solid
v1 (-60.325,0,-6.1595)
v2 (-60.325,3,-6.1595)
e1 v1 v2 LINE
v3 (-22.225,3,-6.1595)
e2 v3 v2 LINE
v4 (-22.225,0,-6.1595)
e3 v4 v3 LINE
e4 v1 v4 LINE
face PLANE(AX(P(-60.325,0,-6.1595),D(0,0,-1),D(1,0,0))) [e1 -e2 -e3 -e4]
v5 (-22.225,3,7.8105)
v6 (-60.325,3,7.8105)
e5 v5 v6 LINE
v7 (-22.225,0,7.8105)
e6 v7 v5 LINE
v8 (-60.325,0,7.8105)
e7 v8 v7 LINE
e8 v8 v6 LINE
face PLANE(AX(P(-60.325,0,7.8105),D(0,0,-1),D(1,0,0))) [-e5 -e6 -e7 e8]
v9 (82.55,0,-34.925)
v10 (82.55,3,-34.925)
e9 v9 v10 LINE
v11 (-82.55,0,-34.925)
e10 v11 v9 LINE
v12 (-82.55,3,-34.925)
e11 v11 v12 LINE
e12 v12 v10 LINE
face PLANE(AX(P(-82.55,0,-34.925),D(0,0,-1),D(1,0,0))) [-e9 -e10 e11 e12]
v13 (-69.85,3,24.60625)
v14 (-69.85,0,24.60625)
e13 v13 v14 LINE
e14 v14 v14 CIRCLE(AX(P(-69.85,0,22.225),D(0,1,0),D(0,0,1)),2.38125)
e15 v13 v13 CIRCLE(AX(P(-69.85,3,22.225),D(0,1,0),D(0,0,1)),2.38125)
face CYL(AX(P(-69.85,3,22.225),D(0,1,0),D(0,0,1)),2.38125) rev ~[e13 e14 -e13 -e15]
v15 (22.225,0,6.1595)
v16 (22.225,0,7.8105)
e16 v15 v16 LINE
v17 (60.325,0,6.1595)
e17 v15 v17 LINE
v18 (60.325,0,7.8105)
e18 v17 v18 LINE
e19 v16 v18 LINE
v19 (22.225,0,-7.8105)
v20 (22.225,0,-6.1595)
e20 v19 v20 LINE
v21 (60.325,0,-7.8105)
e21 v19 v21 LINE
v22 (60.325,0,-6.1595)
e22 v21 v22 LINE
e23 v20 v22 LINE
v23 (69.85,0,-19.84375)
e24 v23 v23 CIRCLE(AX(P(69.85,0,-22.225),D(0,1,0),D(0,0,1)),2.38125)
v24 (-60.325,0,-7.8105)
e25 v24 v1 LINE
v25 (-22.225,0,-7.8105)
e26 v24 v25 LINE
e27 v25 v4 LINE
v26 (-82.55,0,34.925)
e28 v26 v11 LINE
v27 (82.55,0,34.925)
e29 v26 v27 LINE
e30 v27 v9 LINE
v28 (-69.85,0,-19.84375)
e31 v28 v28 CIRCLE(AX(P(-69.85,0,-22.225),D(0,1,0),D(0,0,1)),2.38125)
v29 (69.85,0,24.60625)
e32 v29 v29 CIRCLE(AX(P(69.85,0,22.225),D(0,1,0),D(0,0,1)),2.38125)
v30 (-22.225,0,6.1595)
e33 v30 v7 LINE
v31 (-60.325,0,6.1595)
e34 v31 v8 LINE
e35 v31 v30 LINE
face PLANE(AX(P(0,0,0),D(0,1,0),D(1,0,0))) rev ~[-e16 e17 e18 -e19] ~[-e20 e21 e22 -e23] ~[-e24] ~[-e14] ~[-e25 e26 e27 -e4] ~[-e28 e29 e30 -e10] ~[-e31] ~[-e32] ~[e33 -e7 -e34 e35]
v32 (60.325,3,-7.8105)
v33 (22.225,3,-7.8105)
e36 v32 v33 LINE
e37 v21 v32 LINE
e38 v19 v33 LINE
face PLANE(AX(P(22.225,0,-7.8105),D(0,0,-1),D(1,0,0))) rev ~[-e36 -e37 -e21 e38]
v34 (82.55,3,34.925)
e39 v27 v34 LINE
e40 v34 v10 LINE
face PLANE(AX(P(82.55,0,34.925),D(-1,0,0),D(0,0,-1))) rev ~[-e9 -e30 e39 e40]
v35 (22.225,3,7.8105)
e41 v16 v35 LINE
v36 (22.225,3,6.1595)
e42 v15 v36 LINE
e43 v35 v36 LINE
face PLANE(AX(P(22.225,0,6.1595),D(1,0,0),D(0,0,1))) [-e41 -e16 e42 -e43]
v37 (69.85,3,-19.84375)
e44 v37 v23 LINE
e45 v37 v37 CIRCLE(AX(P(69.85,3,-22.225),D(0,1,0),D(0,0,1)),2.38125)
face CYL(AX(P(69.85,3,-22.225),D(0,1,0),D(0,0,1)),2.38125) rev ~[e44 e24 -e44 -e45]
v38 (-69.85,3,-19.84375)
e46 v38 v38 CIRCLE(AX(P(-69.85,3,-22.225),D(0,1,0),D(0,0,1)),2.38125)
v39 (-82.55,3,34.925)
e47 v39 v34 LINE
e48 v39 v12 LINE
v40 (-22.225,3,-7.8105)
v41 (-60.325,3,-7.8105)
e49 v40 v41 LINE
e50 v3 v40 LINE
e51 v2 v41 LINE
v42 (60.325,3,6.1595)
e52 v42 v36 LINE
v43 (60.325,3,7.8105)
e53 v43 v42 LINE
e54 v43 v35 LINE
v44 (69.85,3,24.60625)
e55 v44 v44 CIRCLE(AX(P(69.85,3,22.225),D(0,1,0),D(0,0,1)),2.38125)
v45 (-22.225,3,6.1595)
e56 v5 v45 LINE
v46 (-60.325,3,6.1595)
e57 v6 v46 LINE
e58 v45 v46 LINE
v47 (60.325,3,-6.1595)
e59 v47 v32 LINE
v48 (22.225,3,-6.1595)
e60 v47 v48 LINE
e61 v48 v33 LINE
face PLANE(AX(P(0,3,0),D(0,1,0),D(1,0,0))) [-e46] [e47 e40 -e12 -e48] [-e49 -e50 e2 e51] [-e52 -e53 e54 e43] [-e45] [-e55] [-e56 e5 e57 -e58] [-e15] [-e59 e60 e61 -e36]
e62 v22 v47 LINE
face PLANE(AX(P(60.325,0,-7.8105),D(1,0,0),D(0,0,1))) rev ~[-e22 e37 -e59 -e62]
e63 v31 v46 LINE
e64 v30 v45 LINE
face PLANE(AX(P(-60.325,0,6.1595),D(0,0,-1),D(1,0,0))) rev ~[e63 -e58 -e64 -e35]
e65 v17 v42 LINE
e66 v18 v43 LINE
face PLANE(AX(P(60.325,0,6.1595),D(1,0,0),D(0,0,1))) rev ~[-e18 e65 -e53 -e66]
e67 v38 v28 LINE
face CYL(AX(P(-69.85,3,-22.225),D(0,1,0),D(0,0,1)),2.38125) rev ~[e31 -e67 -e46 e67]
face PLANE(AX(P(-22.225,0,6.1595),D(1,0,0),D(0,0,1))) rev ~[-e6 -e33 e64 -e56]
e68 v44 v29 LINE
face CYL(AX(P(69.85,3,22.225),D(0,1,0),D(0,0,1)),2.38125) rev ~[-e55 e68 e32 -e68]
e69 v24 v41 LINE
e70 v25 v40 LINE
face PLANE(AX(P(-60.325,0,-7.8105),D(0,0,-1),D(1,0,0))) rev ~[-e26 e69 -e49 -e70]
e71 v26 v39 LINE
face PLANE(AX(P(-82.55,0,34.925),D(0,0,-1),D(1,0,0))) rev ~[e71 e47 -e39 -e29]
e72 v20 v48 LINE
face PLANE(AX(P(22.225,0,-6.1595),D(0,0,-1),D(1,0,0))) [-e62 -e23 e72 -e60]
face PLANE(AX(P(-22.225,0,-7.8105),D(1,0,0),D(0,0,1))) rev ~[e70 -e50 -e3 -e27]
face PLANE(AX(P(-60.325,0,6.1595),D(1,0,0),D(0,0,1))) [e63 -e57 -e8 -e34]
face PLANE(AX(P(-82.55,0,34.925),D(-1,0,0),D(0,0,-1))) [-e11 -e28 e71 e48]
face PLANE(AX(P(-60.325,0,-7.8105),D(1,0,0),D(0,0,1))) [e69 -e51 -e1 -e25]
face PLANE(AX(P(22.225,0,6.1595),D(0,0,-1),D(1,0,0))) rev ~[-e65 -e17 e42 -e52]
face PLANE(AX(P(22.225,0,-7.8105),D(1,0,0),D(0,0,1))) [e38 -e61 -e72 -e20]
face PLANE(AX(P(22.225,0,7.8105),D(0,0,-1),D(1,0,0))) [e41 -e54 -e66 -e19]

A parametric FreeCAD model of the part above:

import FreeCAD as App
import Part
import Sketcher

V = App.Vector
Q = App.Units.Quantity

doc = App.newDocument("Part")
params = doc.addObject("Spreadsheet::Sheet", "Params")
for row, (alias, value) in enumerate([
    ("sketch1_width", "6.5 in"),
    ("sketch1_height", "2.75 in"),
    ("pad1_length", "3 mm"),
    ("sketch2_diameter", "0.1875 in"),
    ("sketch3_diameter", "0.1875 in"),
    ("sketch4_diameter", "0.1875 in"),
    ("sketch5_diameter", "0.1875 in"),
    ("sketch6_width", "1.5 in"),
    ("sketch6_height", "0.065 in"),
    ("pocket5_length", "1.05 in"),
], start=1):
    params.set(f"A{row}", alias)
    params.set(f"B{row}", "=" + value)
    params.setAlias(f"B{row}", alias)

body = doc.addObject("PartDesign::Body", "Body")

# Sketch on XZ plane
sketch1 = body.newObject("Sketcher::SketchObject", "Sketch")
sketch1.AttachmentSupport = (doc.getObject("XZ_Plane"), [""])
sketch1.MapMode = "FlatFace"
sketch1.addGeometry([
    Part.LineSegment(V(-83, -35, 0), V(-83, 35, 0)),
    Part.LineSegment(V(-83, 35, 0), V(83, 35, 0)),
    Part.LineSegment(V(83, 35, 0), V(83, -35, 0)),
    Part.LineSegment(V(83, -35, 0), V(-83, -35, 0)),
], False)
sketch1.addConstraint([
    Sketcher.Constraint("Coincident", 0, 2, 1, 1),
    Sketcher.Constraint("Coincident", 1, 2, 2, 1),
    Sketcher.Constraint("Coincident", 2, 2, 3, 1),
    Sketcher.Constraint("Coincident", 3, 2, 0, 1),
    Sketcher.Constraint("Vertical", 0),
    Sketcher.Constraint("Horizontal", 1),
    Sketcher.Constraint("Vertical", 2),
    Sketcher.Constraint("Horizontal", 3),
    Sketcher.Constraint("Symmetric", 0, 2, 2, 2, -1, 1),
    Sketcher.Constraint("DistanceX", 1, 1, 1, 2, Q("6.5 in")),
    Sketcher.Constraint("DistanceY", 0, 1, 0, 2, Q("2.75 in")),
])
sketch1.setExpression("Constraints[9]", "Params.sketch1_width")
sketch1.setExpression("Constraints[10]", "Params.sketch1_height")
pad1 = body.newObject("PartDesign::Pad", "Pad")
pad1.Profile = sketch1
pad1.setExpression("Length", "Params.pad1_length")
pad1.Reversed = True

# Sketch on XZ plane
sketch2 = body.newObject("Sketcher::SketchObject", "Sketch001")
sketch2.AttachmentSupport = (doc.getObject("XZ_Plane"), [""])
sketch2.MapMode = "FlatFace"
sketch2.AttachmentOffset = App.Placement(V(0, 0, -3), App.Rotation())
sketch2.addGeometry(Part.Circle(V(-69.8, 22.2, 0), V(0, 0, 1), 2.4), False)
sketch2.addConstraint([
    Sketcher.Constraint("Diameter", 0, Q("0.1875 in")),
    Sketcher.Constraint("DistanceX", 0, 3, -1, 1, Q("2.75 in")),
    Sketcher.Constraint("DistanceY", -1, 1, 0, 3, Q("0.875 in")),
])
sketch2.setExpression("Constraints[0]", "Params.sketch2_diameter")
pocket1 = body.newObject("PartDesign::Pocket", "Pocket")
pocket1.Profile = sketch2
pocket1.Type = "UpToFirst"
pocket1.Reversed = True

# Sketch on XZ plane
sketch3 = body.newObject("Sketcher::SketchObject", "Sketch002")
sketch3.AttachmentSupport = (doc.getObject("XZ_Plane"), [""])
sketch3.MapMode = "FlatFace"
sketch3.AttachmentOffset = App.Placement(V(0, 0, -3), App.Rotation())
sketch3.addGeometry(Part.Circle(V(-69.8, -22.2, 0), V(0, 0, 1), 2.4), False)
sketch3.addConstraint([
    Sketcher.Constraint("Diameter", 0, Q("0.1875 in")),
    Sketcher.Constraint("DistanceX", 0, 3, -1, 1, Q("2.75 in")),
    Sketcher.Constraint("DistanceY", 0, 3, -1, 1, Q("0.875 in")),
])
sketch3.setExpression("Constraints[0]", "Params.sketch3_diameter")
pocket2 = body.newObject("PartDesign::Pocket", "Pocket001")
pocket2.Profile = sketch3
pocket2.Type = "UpToFirst"
pocket2.Reversed = True

# Sketch on XZ plane
sketch4 = body.newObject("Sketcher::SketchObject", "Sketch003")
sketch4.AttachmentSupport = (doc.getObject("XZ_Plane"), [""])
sketch4.MapMode = "FlatFace"
sketch4.AttachmentOffset = App.Placement(V(0, 0, -3), App.Rotation())
sketch4.addGeometry(Part.Circle(V(69.8, -22.2, 0), V(0, 0, 1), 2.4), False)
sketch4.addConstraint([
    Sketcher.Constraint("Diameter", 0, Q("0.1875 in")),
    Sketcher.Constraint("DistanceX", -1, 1, 0, 3, Q("2.75 in")),
    Sketcher.Constraint("DistanceY", 0, 3, -1, 1, Q("0.875 in")),
])
sketch4.setExpression("Constraints[0]", "Params.sketch4_diameter")
pocket3 = body.newObject("PartDesign::Pocket", "Pocket002")
pocket3.Profile = sketch4
pocket3.Type = "UpToFirst"
pocket3.Reversed = True

# Sketch on XZ plane
sketch5 = body.newObject("Sketcher::SketchObject", "Sketch004")
sketch5.AttachmentSupport = (doc.getObject("XZ_Plane"), [""])
sketch5.MapMode = "FlatFace"
sketch5.AttachmentOffset = App.Placement(V(0, 0, -3), App.Rotation())
sketch5.addGeometry(Part.Circle(V(69.8, 22.2, 0), V(0, 0, 1), 2.4), False)
sketch5.addConstraint([
    Sketcher.Constraint("Diameter", 0, Q("0.1875 in")),
    Sketcher.Constraint("DistanceX", -1, 1, 0, 3, Q("2.75 in")),
    Sketcher.Constraint("DistanceY", -1, 1, 0, 3, Q("0.875 in")),
])
sketch5.setExpression("Constraints[0]", "Params.sketch5_diameter")
pocket4 = body.newObject("PartDesign::Pocket", "Pocket003")
pocket4.Profile = sketch5
pocket4.Type = "UpToFirst"
pocket4.Reversed = True

# Sketch on XZ plane
sketch6 = body.newObject("Sketcher::SketchObject", "Sketch005")
sketch6.AttachmentSupport = (doc.getObject("XZ_Plane"), [""])
sketch6.MapMode = "FlatFace"
sketch6.addGeometry([
    Part.LineSegment(V(-60.3, -6.2, 0), V(-60.3, -7.8, 0)),  # 0
    Part.LineSegment(V(-60.3, -7.8, 0), V(-22.2, -7.8, 0)),  # 1
    Part.LineSegment(V(-22.2, -7.8, 0), V(-22.2, -6.2, 0)),  # 2
    Part.LineSegment(V(-22.2, -6.2, 0), V(-60.3, -6.2, 0)),  # 3
    Part.LineSegment(V(-60.3, 7.8, 0), V(-60.3, 6.2, 0)),  # 4
    Part.LineSegment(V(-60.3, 6.2, 0), V(-22.2, 6.2, 0)),  # 5
    Part.LineSegment(V(-22.2, 6.2, 0), V(-22.2, 7.8, 0)),  # 6
    Part.LineSegment(V(-22.2, 7.8, 0), V(-60.3, 7.8, 0)),  # 7
    Part.LineSegment(V(22.2, 7.8, 0), V(22.2, 6.2, 0)),  # 8
    Part.LineSegment(V(22.2, 6.2, 0), V(60.3, 6.2, 0)),  # 9
    Part.LineSegment(V(60.3, 6.2, 0), V(60.3, 7.8, 0)),  # 10
    Part.LineSegment(V(60.3, 7.8, 0), V(22.2, 7.8, 0)),  # 11
    Part.LineSegment(V(22.2, -6.2, 0), V(22.2, -7.8, 0)),  # 12
    Part.LineSegment(V(22.2, -7.8, 0), V(60.3, -7.8, 0)),  # 13
    Part.LineSegment(V(60.3, -7.8, 0), V(60.3, -6.2, 0)),  # 14
    Part.LineSegment(V(60.3, -6.2, 0), V(22.2, -6.2, 0)),  # 15
], False)
sketch6.addConstraint([
    Sketcher.Constraint("Coincident", 0, 2, 1, 1),
    Sketcher.Constraint("Coincident", 1, 2, 2, 1),
    Sketcher.Constraint("Coincident", 2, 2, 3, 1),
    Sketcher.Constraint("Coincident", 3, 2, 0, 1),
    Sketcher.Constraint("Coincident", 4, 2, 5, 1),
    Sketcher.Constraint("Coincident", 5, 2, 6, 1),
    Sketcher.Constraint("Coincident", 6, 2, 7, 1),
    Sketcher.Constraint("Coincident", 7, 2, 4, 1),
    Sketcher.Constraint("Coincident", 8, 2, 9, 1),
    Sketcher.Constraint("Coincident", 9, 2, 10, 1),
    Sketcher.Constraint("Coincident", 10, 2, 11, 1),
    Sketcher.Constraint("Coincident", 11, 2, 8, 1),
    Sketcher.Constraint("Coincident", 12, 2, 13, 1),
    Sketcher.Constraint("Coincident", 13, 2, 14, 1),
    Sketcher.Constraint("Coincident", 14, 2, 15, 1),
    Sketcher.Constraint("Coincident", 15, 2, 12, 1),
    Sketcher.Constraint("Vertical", 0),
    Sketcher.Constraint("Horizontal", 1),
    Sketcher.Constraint("Vertical", 2),
    Sketcher.Constraint("Horizontal", 3),
    Sketcher.Constraint("Vertical", 4),
    Sketcher.Constraint("Horizontal", 5),
    Sketcher.Constraint("Vertical", 6),
    Sketcher.Constraint("Horizontal", 7),
    Sketcher.Constraint("Vertical", 8),
    Sketcher.Constraint("Horizontal", 9),
    Sketcher.Constraint("Vertical", 10),
    Sketcher.Constraint("Horizontal", 11),
    Sketcher.Constraint("Vertical", 12),
    Sketcher.Constraint("Horizontal", 13),
    Sketcher.Constraint("Vertical", 14),
    Sketcher.Constraint("Horizontal", 15),
    Sketcher.Constraint("Symmetric", 2, 2, 8, 2, -1, 1),
    Sketcher.Constraint("Symmetric", 0, 2, 10, 2, -1, 1),
    Sketcher.Constraint("Symmetric", 6, 2, 12, 2, -1, 1),
    Sketcher.Constraint("Symmetric", 4, 2, 14, 2, -1, 1),
    Sketcher.Constraint("Symmetric", 5, 2, 8, 2, -2),
    Sketcher.Constraint("Symmetric", 7, 2, 10, 2, -2),
    Sketcher.Constraint("DistanceX", 1, 1, 1, 2, Q("1.5 in")),
    Sketcher.Constraint("DistanceY", 0, 2, 0, 1, Q("0.065 in")),
    Sketcher.Constraint("DistanceY", 0, 2, 4, 2, Q("0.55 in")),
    Sketcher.Constraint("DistanceX", 5, 2, 8, 2, Q("1.75 in")),
])
sketch6.setExpression("Constraints[38]", "Params.sketch6_width")
sketch6.setExpression("Constraints[39]", "Params.sketch6_height")
pocket5 = body.newObject("PartDesign::Pocket", "Pocket004")
pocket5.Profile = sketch6
pocket5.setExpression("Length", "Params.pocket5_length")

doc.recompute()
